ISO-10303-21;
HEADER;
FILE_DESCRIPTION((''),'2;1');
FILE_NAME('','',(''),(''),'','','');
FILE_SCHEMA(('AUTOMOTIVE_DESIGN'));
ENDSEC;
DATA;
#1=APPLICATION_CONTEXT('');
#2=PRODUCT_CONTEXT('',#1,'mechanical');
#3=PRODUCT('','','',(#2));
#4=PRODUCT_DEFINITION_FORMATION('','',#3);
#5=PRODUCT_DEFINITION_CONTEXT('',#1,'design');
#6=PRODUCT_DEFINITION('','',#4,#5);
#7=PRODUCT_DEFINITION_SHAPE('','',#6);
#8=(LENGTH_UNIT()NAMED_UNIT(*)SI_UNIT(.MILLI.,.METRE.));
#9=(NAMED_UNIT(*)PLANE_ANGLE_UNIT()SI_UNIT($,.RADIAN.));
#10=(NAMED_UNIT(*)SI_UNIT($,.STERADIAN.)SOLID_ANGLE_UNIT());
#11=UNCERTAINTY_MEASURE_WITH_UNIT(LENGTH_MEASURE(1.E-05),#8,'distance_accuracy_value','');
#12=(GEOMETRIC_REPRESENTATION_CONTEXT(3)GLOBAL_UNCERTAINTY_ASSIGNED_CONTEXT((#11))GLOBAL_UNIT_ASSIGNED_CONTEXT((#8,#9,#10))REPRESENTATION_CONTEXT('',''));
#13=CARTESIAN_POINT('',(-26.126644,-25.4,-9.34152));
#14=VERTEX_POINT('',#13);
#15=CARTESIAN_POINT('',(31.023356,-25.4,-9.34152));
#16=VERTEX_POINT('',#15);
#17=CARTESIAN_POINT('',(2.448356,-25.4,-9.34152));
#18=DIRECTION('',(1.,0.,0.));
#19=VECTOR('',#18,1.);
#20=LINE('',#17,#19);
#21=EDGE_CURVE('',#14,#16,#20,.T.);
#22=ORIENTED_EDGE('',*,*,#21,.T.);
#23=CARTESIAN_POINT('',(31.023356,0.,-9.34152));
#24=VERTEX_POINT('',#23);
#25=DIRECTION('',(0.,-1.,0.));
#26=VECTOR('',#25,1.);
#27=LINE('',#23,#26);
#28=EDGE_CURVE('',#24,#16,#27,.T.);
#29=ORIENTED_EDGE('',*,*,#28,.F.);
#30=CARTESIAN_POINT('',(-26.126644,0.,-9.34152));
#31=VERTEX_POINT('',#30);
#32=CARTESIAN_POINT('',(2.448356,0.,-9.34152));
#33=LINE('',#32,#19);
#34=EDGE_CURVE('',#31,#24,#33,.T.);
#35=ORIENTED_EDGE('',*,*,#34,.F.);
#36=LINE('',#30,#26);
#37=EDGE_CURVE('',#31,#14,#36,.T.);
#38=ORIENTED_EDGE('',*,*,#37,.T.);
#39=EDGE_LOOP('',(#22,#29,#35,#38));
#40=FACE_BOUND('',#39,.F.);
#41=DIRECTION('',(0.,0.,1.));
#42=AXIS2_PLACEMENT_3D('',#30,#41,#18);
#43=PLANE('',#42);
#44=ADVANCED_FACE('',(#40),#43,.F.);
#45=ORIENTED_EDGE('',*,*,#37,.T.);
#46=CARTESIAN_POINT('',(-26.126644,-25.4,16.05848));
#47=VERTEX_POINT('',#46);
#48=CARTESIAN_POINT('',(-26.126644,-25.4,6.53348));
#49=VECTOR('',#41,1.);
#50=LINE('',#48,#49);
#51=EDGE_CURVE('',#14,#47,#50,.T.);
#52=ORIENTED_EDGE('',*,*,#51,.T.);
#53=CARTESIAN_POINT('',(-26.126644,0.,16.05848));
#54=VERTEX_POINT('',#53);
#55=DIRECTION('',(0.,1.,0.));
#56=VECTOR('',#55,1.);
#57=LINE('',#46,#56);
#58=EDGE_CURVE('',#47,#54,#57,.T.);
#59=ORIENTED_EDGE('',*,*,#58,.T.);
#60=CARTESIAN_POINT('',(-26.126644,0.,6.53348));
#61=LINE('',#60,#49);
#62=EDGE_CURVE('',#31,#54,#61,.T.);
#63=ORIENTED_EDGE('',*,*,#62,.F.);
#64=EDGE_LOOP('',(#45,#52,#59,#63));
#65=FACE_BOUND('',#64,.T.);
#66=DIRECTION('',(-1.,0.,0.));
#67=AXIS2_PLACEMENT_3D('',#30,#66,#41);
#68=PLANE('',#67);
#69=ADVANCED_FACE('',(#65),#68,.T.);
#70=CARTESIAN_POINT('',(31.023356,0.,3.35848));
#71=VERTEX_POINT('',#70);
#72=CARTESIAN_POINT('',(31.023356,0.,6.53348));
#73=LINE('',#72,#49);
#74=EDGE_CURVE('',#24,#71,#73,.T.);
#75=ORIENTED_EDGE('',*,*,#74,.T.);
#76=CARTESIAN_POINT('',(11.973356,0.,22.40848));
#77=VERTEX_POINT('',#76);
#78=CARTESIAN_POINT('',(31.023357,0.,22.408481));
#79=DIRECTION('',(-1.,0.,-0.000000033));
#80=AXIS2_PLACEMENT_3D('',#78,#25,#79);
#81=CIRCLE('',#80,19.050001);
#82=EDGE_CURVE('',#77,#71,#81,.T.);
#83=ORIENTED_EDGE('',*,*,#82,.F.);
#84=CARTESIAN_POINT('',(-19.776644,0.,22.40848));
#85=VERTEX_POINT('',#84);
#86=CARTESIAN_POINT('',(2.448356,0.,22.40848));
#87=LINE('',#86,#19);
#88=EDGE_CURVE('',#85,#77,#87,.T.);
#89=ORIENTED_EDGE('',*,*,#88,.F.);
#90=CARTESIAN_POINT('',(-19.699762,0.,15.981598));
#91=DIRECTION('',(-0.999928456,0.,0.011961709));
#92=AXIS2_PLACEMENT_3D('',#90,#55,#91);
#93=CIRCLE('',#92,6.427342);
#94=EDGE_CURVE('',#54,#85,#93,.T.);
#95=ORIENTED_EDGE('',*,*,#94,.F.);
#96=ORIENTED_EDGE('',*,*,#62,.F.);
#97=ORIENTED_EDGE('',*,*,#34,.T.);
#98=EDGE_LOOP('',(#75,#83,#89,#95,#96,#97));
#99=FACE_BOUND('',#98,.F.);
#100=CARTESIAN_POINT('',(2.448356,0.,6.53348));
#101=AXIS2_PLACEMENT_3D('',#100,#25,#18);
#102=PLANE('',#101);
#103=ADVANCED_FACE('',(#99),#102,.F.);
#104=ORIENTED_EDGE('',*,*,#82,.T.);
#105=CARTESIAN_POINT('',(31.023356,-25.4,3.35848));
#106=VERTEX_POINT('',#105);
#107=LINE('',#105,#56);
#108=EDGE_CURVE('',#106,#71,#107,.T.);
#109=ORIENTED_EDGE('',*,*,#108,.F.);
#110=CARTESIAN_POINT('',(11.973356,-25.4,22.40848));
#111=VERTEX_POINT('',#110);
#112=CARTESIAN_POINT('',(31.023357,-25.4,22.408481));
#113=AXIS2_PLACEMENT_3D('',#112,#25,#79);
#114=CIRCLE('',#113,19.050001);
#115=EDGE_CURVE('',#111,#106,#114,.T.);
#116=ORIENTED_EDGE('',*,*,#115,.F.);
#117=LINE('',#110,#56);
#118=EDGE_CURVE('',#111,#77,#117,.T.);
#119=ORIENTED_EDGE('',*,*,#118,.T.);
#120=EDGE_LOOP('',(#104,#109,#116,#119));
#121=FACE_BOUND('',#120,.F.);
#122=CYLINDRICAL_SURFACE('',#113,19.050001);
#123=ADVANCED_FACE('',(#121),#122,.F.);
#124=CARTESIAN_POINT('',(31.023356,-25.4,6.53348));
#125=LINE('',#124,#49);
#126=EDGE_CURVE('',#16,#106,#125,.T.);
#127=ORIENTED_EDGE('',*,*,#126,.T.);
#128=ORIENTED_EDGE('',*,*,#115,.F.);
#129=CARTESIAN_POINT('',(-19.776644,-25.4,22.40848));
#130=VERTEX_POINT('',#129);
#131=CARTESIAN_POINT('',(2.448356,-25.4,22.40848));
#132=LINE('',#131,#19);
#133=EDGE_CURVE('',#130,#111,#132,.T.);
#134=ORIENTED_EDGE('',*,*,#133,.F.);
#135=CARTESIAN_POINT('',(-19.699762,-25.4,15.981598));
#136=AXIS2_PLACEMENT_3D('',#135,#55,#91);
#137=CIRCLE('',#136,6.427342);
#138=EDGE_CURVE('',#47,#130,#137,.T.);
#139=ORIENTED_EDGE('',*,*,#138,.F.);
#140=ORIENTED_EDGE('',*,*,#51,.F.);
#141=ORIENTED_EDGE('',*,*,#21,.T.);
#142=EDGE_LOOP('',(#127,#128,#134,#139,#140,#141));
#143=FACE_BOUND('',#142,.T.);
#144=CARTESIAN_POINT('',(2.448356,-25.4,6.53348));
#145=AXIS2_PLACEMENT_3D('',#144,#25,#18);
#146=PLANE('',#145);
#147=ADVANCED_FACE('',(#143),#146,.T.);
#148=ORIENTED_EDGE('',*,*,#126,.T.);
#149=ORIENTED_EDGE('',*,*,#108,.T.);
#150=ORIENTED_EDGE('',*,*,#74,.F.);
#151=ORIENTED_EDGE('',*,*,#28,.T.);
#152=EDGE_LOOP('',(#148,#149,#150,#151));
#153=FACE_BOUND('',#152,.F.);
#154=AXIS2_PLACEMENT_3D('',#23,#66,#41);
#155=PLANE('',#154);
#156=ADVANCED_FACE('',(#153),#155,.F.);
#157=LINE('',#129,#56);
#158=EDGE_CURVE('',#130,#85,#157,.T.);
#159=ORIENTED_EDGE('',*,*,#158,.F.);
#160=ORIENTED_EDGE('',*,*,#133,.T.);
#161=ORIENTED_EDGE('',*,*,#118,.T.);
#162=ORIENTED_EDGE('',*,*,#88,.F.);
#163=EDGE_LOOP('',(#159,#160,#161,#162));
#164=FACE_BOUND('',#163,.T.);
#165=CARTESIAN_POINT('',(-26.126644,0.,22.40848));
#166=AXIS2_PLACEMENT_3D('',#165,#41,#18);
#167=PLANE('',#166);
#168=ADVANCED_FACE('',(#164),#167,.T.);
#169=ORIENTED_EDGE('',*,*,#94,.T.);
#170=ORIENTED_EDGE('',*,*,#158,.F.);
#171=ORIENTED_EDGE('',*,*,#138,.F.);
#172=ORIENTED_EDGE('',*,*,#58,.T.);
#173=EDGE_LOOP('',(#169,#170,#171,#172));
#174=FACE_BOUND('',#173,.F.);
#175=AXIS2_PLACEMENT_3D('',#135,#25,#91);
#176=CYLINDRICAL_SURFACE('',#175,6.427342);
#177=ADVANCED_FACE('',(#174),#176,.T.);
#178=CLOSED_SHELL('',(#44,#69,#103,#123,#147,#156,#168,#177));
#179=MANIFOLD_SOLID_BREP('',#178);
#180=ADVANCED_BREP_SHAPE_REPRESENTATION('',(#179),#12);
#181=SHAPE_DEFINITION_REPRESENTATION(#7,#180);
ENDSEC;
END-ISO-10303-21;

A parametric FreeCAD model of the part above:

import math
import FreeCAD as App
import Part
import Sketcher

V = App.Vector
Q = App.Units.Quantity

doc = App.newDocument("Part")
body = doc.addObject("PartDesign::Body", "Body")

# Sketch on XZ plane
sketch1 = body.newObject("Sketcher::SketchObject", "Sketch")
sketch1.AttachmentSupport = (doc.getObject("XZ_Plane"), [""])
sketch1.MapMode = "FlatFace"
sketch1.addGeometry(Part.LineSegment(V(-26.126644, 22.40848, 0), V(-26.126644, -9.34152, 0)), False)
sketch1.addGeometry(Part.LineSegment(V(-26.126644, -9.34152, 0), V(31.023356, -9.34152, 0)), False)
sketch1.addGeometry(Part.LineSegment(V(31.023356, -9.34152, 0), V(31.023356, 22.40848, 0)), False)
sketch1.addGeometry(Part.LineSegment(V(31.023356, 22.40848, 0), V(-26.126644, 22.40848, 0)), False)
sketch1.addConstraint(Sketcher.Constraint("Coincident", 0, 2, 1, 1))
sketch1.addConstraint(Sketcher.Constraint("Coincident", 1, 2, 2, 1))
sketch1.addConstraint(Sketcher.Constraint("Coincident", 2, 2, 3, 1))
sketch1.addConstraint(Sketcher.Constraint("Coincident", 3, 2, 0, 1))
sketch1.addConstraint(Sketcher.Constraint("Vertical", 0))
sketch1.addConstraint(Sketcher.Constraint("Horizontal", 1))
sketch1.addConstraint(Sketcher.Constraint("Vertical", 2))
sketch1.addConstraint(Sketcher.Constraint("Horizontal", 3))
sketch1.addConstraint(Sketcher.Constraint("DistanceX", 1, 1, 1, 2, Q("2.25 in")))
sketch1.addConstraint(Sketcher.Constraint("DistanceY", 0, 2, 0, 1, Q("1.25 in")))
sketch1.addConstraint(Sketcher.Constraint("DistanceY", 0, 2, -1, 1, Q("9.34152 mm")))
sketch1.addConstraint(Sketcher.Constraint("DistanceX", 0, 2, -1, 1, Q("26.126644 mm")))
pad1 = body.newObject("PartDesign::Pad", "Pad")
pad1.Profile = sketch1
pad1.Length = Q("1 in")

# Sketch on XZ plane
sketch2 = body.newObject("Sketcher::SketchObject", "Sketch001")
sketch2.AttachmentSupport = (doc.getObject("XZ_Plane"), [""])
sketch2.MapMode = "FlatFace"
sketch2.AttachmentOffset = App.Placement(V(0, 0, 1 * 25.4), App.Rotation())
sketch2.addGeometry(Part.LineSegment(V(31.023356, 22.40848, 0), V(11.973356, 22.40848, 0)), False)
sketch2.addGeometry(Part.ArcOfCircle(Part.Circle(V(31.023357, 22.408481, 0), V(0, 0, 1), 19.050001), math.radians(-179.999998), math.radians(-90.000002)), False)
sketch2.addGeometry(Part.LineSegment(V(31.023356, 3.35848, 0), V(31.023356, 22.40848, 0)), False)
sketch2.addConstraint(Sketcher.Constraint("Coincident", 0, 2, 1, 1))
sketch2.addConstraint(Sketcher.Constraint("Coincident", 1, 2, 2, 1))
sketch2.addConstraint(Sketcher.Constraint("Coincident", 2, 2, 0, 1))
sketch2.addConstraint(Sketcher.Constraint("Horizontal", 0))
sketch2.addConstraint(Sketcher.Constraint("Vertical", 2))
sketch2.addConstraint(Sketcher.Constraint("Coincident", 2, 2, 1, 3))
sketch2.addConstraint(Sketcher.Constraint("Radius", 1, Q("0.75 in")))
sketch2.addConstraint(Sketcher.Constraint("DistanceY", -1, 1, 1, 3, Q("22.408481 mm")))
sketch2.addConstraint(Sketcher.Constraint("DistanceX", -1, 1, 1, 3, Q("31.023357 mm")))
pocket1 = body.newObject("PartDesign::Pocket", "Pocket")
pocket1.Profile = sketch2
pocket1.Length = Q("1 in")

# Sketch on XZ plane
sketch3 = body.newObject("Sketcher::SketchObject", "Sketch002")
sketch3.AttachmentSupport = (doc.getObject("XZ_Plane"), [""])
sketch3.MapMode = "FlatFace"
sketch3.AttachmentOffset = App.Placement(V(0, 0, 1 * 25.4), App.Rotation())
sketch3.addGeometry(Part.ArcOfCircle(Part.Circle(V(-19.699762, 15.981598, 0), V(0, 0, 1), 6.427342), math.radians(90.685372), math.radians(179.314628)), False)
sketch3.addGeometry(Part.LineSegment(V(-19.776644, 22.40848, 0), V(-26.126644, 22.40848, 0)), False)
sketch3.addGeometry(Part.LineSegment(V(-26.126644, 22.40848, 0), V(-26.126644, 16.05848, 0)), False)
sketch3.addConstraint(Sketcher.Constraint("Coincident", 0, 1, 1, 1))
sketch3.addConstraint(Sketcher.Constraint("Coincident", 1, 2, 2, 1))
sketch3.addConstraint(Sketcher.Constraint("Coincident", 2, 2, 0, 2))
sketch3.addConstraint(Sketcher.Constraint("Horizontal", 1))
sketch3.addConstraint(Sketcher.Constraint("Vertical", 2))
sketch3.addConstraint(Sketcher.Constraint("Equal", 1, 2))
sketch3.addConstraint(Sketcher.Constraint("DistanceX", 1, 2, 1, 1, Q("0.25 in")))
sketch3.addConstraint(Sketcher.Constraint("Radius", 0, Q("6.427342 mm")))
sketch3.addConstraint(Sketcher.Constraint("DistanceY", -1, 1, 0, 3, Q("15.981598 mm")))
sketch3.addConstraint(Sketcher.Constraint("DistanceX", 0, 3, -1, 1, Q("19.699762 mm")))
pocket2 = body.newObject("PartDesign::Pocket", "Pocket001")
pocket2.Profile = sketch3
pocket2.Length = Q("1 in")

doc.recompute()
